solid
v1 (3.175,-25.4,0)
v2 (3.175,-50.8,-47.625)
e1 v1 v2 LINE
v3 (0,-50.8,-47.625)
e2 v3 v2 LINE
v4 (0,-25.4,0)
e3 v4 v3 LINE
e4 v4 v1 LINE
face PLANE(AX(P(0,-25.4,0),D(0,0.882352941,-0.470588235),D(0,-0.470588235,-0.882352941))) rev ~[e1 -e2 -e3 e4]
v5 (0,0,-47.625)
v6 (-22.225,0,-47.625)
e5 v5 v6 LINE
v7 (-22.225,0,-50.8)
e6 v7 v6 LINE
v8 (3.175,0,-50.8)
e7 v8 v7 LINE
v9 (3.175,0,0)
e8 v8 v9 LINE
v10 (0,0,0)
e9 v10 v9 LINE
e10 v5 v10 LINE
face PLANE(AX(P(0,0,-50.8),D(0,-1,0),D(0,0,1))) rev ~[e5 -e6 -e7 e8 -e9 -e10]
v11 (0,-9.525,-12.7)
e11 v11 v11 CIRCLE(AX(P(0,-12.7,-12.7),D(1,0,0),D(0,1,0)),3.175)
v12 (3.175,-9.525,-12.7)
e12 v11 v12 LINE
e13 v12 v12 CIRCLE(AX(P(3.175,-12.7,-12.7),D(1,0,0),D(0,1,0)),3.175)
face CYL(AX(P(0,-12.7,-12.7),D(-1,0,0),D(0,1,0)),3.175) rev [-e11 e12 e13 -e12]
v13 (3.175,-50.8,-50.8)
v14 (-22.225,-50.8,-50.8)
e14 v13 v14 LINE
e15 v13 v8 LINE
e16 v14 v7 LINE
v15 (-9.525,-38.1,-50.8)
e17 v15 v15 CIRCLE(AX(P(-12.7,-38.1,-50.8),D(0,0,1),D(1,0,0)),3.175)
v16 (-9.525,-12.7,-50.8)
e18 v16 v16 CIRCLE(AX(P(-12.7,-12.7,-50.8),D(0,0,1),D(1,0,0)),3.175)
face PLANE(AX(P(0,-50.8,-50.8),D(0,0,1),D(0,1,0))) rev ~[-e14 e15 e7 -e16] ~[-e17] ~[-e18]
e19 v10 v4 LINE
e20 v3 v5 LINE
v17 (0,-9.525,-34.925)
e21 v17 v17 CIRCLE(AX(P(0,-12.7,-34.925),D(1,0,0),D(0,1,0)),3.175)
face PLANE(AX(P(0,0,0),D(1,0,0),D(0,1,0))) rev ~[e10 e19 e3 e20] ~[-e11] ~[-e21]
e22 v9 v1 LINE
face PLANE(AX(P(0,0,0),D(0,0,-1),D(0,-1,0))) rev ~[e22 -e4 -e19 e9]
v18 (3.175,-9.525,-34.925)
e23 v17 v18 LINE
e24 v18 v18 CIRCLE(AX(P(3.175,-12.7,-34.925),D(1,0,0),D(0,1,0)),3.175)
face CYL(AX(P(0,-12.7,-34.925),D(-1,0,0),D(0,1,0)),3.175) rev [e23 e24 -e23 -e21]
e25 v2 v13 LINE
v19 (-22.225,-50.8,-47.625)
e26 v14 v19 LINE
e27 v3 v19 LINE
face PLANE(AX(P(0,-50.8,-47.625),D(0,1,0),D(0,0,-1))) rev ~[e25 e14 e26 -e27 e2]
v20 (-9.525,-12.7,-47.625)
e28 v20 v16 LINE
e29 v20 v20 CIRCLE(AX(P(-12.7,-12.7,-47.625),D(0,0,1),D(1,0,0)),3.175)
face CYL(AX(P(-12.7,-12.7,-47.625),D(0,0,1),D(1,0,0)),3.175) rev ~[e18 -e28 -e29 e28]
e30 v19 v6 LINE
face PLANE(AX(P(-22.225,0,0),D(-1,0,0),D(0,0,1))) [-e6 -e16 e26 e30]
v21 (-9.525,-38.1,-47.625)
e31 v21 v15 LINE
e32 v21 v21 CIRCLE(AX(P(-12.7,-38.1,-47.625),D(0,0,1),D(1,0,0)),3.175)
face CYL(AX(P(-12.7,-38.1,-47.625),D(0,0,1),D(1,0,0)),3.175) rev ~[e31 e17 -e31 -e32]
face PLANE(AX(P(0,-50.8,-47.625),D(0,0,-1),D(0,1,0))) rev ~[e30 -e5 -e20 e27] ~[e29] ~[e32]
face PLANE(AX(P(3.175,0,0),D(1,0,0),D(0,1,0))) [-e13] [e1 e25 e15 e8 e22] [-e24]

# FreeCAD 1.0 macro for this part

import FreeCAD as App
import Part
import Sketcher

V = App.Vector
Q = App.Units.Quantity

doc = App.newDocument("Part")
body = doc.addObject("PartDesign::Body", "Body")

sketch1 = body.newObject("Sketcher::SketchObject", "Sketch")
sketch1.AttachmentSupport = (doc.getObject("YZ_Plane"), [""])
sketch1.MapMode = "FlatFace"
sketch1.addGeometry([
    Part.LineSegment(V(0, 0, 0), V(-25.4, 0, 0)),
    Part.LineSegment(V(-25.4, 0, 0), V(-50.8, -47.6, 0)),
    Part.LineSegment(V(-50.8, -47.6, 0), V(-50.8, -50.8, 0)),
    Part.LineSegment(V(-50.8, -50.8, 0), V(0, -50.8, 0)),
    Part.LineSegment(V(0, -50.8, 0), V(0, 0, 0)),
    Part.Circle(V(-12.7, -34.9, 0), V(0, 0, 1), 3.2),
    Part.Circle(V(-12.7, -12.7, 0), V(0, 0, 1), 3.2),
], False)
sketch1.addConstraint([
    Sketcher.Constraint("Coincident", 0, 2, 1, 1),
    Sketcher.Constraint("Coincident", 1, 2, 2, 1),
    Sketcher.Constraint("Coincident", 2, 2, 3, 1),
    Sketcher.Constraint("Coincident", 3, 2, 4, 1),
    Sketcher.Constraint("Coincident", 4, 2, 0, 1),
    Sketcher.Constraint("Horizontal", 0),
    Sketcher.Constraint("Vertical", 2),
    Sketcher.Constraint("Horizontal", 3),
    Sketcher.Constraint("Vertical", 4),
    Sketcher.Constraint("Coincident", 4, 2, -1, 1),
    Sketcher.Constraint("Equal", 5, 6),
    Sketcher.Constraint("Vertical", 5, 3, 6, 3),
    Sketcher.Constraint("Equal", 3, 4),
    Sketcher.Constraint("Diameter", 5, Q("0.25 in")),
    Sketcher.Constraint("DistanceX", 0, 2, 0, 1, Q("1 in")),
    Sketcher.Constraint("DistanceX", 3, 1, 3, 2, Q("2 in")),
    Sketcher.Constraint("DistanceX", 5, 3, -1, 1, Q("0.5 in")),
    Sketcher.Constraint("DistanceY", 6, 3, -1, 1, Q("0.5 in")),
    Sketcher.Constraint("DistanceY", 1, 2, 5, 3, Q("0.5 in")),
    Sketcher.Constraint("DistanceY", 2, 2, 2, 1, Q("0.125 in")),
])
pad1 = body.newObject("PartDesign::Pad", "Pad")
pad1.Profile = sketch1
pad1.Length = Q("0.125 in")

sketch2 = body.newObject("Sketcher::SketchObject", "Sketch001")
sketch2.AttachmentSupport = (doc.getObject("YZ_Plane"), [""])
sketch2.MapMode = "FlatFace"
sketch2.addGeometry([
    Part.LineSegment(V(0, -50.8, 0), V(-50.8, -50.8, 0)),
    Part.LineSegment(V(-50.8, -50.8, 0), V(-50.8, -47.6, 0)),
    Part.LineSegment(V(-50.8, -47.6, 0), V(0, -47.6, 0)),
    Part.LineSegment(V(0, -47.6, 0), V(0, -50.8, 0)),
], False)
sketch2.addConstraint([
    Sketcher.Constraint("Coincident", 0, 2, 1, 1),
    Sketcher.Constraint("Coincident", 1, 2, 2, 1),
    Sketcher.Constraint("Coincident", 2, 2, 3, 1),
    Sketcher.Constraint("Coincident", 3, 2, 0, 1),
    Sketcher.Constraint("Horizontal", 0),
    Sketcher.Constraint("Vertical", 1),
    Sketcher.Constraint("Horizontal", 2),
    Sketcher.Constraint("Vertical", 3),
    Sketcher.Constraint("PointOnObject", 2, 2, -2),
    Sketcher.Constraint("DistanceX", 0, 2, 0, 1, Q("2 in")),
    Sketcher.Constraint("DistanceY", 1, 1, 1, 2, Q("0.125 in")),
    Sketcher.Constraint("DistanceY", 0, 2, -1, 1, Q("2 in")),
])
pad2 = body.newObject("PartDesign::Pad", "Pad001")
pad2.Profile = sketch2
pad2.Length = Q("0.875 in")
pad2.Reversed = True

sketch3 = body.newObject("Sketcher::SketchObject", "Sketch002")
sketch3.AttachmentSupport = (doc.getObject("XY_Plane"), [""])
sketch3.MapMode = "FlatFace"
sketch3.AttachmentOffset = App.Placement(V(0, 0, -1.875 * 25.4), App.Rotation())
sketch3.addGeometry([
    Part.Circle(V(-12.7, -38.1, 0), V(0, 0, 1), 3.2),
    Part.Circle(V(-12.7, -12.7, 0), V(0, 0, 1), 3.2),
], False)
sketch3.addConstraint([
    Sketcher.Constraint("Equal", 0, 1),
    Sketcher.Constraint("Vertical", 0, 3, 1, 3),
    Sketcher.Constraint("Diameter", 0, Q("0.25 in")),
    Sketcher.Constraint("DistanceX", 0, 3, -1, 1, Q("0.5 in")),
    Sketcher.Constraint("DistanceY", 1, 3, -1, 1, Q("0.5 in")),
    Sketcher.Constraint("DistanceY", 0, 3, 1, 3, Q("1 in")),
])
pocket1 = body.newObject("PartDesign::Pocket", "Pocket")
pocket1.Profile = sketch3
pocket1.Length = Q("0.875 in")

doc.recompute()
